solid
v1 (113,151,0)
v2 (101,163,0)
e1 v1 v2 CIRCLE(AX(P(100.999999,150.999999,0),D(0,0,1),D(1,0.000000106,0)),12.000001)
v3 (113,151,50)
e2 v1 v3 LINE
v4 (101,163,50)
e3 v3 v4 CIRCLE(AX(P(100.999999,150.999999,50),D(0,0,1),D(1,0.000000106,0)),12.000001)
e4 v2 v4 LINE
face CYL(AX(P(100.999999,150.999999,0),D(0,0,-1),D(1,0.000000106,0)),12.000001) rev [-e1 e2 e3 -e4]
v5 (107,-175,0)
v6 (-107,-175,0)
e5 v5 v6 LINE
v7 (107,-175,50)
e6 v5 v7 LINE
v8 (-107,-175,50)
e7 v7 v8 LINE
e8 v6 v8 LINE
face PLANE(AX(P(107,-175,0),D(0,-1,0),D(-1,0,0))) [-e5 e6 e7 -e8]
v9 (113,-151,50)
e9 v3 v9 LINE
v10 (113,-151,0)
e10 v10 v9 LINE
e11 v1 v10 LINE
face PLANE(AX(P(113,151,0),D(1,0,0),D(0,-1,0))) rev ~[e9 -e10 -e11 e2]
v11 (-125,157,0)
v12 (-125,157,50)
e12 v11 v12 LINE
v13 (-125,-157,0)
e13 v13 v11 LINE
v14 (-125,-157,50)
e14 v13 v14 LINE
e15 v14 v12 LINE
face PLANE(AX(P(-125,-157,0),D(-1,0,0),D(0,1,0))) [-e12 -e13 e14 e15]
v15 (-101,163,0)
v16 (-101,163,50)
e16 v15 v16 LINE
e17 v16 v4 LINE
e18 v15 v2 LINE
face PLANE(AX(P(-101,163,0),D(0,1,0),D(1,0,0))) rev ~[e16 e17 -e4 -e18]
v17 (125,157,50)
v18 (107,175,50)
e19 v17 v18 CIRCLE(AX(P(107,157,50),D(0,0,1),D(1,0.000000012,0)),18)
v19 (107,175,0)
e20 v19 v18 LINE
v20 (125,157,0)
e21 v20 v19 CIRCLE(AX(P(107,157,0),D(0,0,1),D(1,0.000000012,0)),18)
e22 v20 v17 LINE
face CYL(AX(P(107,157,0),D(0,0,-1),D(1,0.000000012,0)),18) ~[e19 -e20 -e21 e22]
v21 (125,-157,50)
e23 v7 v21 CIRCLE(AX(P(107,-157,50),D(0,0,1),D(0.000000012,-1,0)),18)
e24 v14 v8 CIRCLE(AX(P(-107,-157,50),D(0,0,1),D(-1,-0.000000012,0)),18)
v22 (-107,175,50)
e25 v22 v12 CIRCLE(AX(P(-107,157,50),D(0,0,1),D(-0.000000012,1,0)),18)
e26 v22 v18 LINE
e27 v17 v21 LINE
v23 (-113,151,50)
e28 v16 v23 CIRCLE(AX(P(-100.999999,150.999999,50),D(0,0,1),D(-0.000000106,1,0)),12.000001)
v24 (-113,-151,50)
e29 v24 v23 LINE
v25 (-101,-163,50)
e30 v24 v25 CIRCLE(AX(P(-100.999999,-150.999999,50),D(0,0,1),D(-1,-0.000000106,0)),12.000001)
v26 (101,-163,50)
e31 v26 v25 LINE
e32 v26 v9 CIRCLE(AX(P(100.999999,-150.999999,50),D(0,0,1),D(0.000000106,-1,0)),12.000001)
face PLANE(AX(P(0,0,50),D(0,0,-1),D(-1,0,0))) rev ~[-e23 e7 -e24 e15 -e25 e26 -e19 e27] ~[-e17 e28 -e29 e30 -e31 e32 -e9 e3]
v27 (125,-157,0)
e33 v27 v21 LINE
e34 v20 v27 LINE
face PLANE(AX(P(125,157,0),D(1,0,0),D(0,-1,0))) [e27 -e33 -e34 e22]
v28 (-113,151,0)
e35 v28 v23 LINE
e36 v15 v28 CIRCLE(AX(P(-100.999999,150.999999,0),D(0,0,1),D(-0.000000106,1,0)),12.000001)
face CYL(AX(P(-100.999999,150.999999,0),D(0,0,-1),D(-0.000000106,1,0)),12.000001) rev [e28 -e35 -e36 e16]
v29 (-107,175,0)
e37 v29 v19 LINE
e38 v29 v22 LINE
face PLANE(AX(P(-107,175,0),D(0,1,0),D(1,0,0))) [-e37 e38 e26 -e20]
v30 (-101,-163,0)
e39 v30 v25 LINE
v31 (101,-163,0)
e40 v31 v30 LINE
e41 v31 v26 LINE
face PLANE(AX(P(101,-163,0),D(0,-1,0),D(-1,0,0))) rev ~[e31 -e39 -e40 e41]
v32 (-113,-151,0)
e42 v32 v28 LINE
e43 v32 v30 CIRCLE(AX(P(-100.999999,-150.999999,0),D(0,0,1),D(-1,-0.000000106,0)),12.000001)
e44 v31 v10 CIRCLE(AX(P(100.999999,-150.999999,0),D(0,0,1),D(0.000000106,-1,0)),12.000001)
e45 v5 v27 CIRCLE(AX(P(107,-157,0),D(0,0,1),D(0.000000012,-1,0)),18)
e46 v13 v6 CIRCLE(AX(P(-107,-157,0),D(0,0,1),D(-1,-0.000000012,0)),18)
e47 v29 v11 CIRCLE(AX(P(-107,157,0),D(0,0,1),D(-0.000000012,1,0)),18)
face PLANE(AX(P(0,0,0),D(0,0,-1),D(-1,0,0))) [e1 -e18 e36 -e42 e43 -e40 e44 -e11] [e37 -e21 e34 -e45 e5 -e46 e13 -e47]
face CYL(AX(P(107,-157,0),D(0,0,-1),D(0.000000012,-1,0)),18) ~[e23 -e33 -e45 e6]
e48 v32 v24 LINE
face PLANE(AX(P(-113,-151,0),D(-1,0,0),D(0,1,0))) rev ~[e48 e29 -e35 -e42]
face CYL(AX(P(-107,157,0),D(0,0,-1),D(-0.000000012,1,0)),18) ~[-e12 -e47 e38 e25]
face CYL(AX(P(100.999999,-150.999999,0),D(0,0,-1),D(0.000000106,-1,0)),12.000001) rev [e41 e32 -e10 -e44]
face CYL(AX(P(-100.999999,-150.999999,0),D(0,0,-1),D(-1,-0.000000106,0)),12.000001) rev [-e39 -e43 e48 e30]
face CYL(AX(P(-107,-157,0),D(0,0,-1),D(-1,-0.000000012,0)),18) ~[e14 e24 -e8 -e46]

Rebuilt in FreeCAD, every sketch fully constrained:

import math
import FreeCAD as App
import Part
import Sketcher

V = App.Vector

doc = App.newDocument("Part")
body = doc.addObject("PartDesign::Body", "Body")

# Sketch on XY plane
sketch1 = body.newObject("Sketcher::SketchObject", "Sketch")
sketch1.AttachmentSupport = (doc.getObject("XY_Plane"), [""])
sketch1.MapMode = "FlatFace"
sketch1.addGeometry([
    Part.LineSegment(V(107, 175, 0), V(-107, 175, 0)),  # 0
    Part.ArcOfCircle(Part.Circle(V(-107, 157, 0), V(0, 0, 1), 18), math.radians(90), math.radians(180)),  # 1
    Part.LineSegment(V(-125, 157, 0), V(-125, -157, 0)),  # 2
    Part.ArcOfCircle(Part.Circle(V(-107, -157, 0), V(0, 0, 1), 18), math.radians(-180), math.radians(-90)),  # 3
    Part.LineSegment(V(-107, -175, 0), V(107, -175, 0)),  # 4
    Part.ArcOfCircle(Part.Circle(V(107, -157, 0), V(0, 0, 1), 18), math.radians(-90), math.radians(0)),  # 5
    Part.LineSegment(V(125, -157, 0), V(125, 157, 0)),  # 6
    Part.ArcOfCircle(Part.Circle(V(107, 157, 0), V(0, 0, 1), 18), math.radians(0), math.radians(90)),  # 7
    Part.LineSegment(V(-101, 163, 0), V(101, 163, 0)),  # 8
    Part.ArcOfCircle(Part.Circle(V(101, 151, 0), V(0, 0, 1), 12), math.radians(0), math.radians(90)),  # 9
    Part.LineSegment(V(113, 151, 0), V(113, -151, 0)),  # 10
    Part.ArcOfCircle(Part.Circle(V(101, -151, 0), V(0, 0, 1), 12), math.radians(-90), math.radians(0)),  # 11
    Part.LineSegment(V(101, -163, 0), V(-101, -163, 0)),  # 12
    Part.ArcOfCircle(Part.Circle(V(-101, -151, 0), V(0, 0, 1), 12), math.radians(-180), math.radians(-90)),  # 13
    Part.LineSegment(V(-113, -151, 0), V(-113, 151, 0)),  # 14
    Part.ArcOfCircle(Part.Circle(V(-101, 151, 0), V(0, 0, 1), 12), math.radians(90), math.radians(180)),  # 15
], False)
sketch1.addConstraint([
    Sketcher.Constraint("Tangent", 0, 2, 1, 1),
    Sketcher.Constraint("Tangent", 1, 2, 2, 1),
    Sketcher.Constraint("Tangent", 2, 2, 3, 1),
    Sketcher.Constraint("Tangent", 3, 2, 4, 1),
    Sketcher.Constraint("Tangent", 4, 2, 5, 1),
    Sketcher.Constraint("Tangent", 5, 2, 6, 1),
    Sketcher.Constraint("Tangent", 6, 2, 7, 1),
    Sketcher.Constraint("Tangent", 7, 2, 0, 1),
    Sketcher.Constraint("Tangent", 8, 2, 9, 2),
    Sketcher.Constraint("Tangent", 9, 1, 10, 1),
    Sketcher.Constraint("Tangent", 10, 2, 11, 2),
    Sketcher.Constraint("Tangent", 11, 1, 12, 1),
    Sketcher.Constraint("Tangent", 12, 2, 13, 2),
    Sketcher.Constraint("Tangent", 13, 1, 14, 1),
    Sketcher.Constraint("Tangent", 14, 2, 15, 2),
    Sketcher.Constraint("Tangent", 15, 1, 8, 1),
    Sketcher.Constraint("Horizontal", 0),
    Sketcher.Constraint("Vertical", 2),
    Sketcher.Constraint("Horizontal", 4),
    Sketcher.Constraint("Vertical", 6),
    Sketcher.Constraint("Horizontal", 8),
    Sketcher.Constraint("Vertical", 10),
    Sketcher.Constraint("Horizontal", 12),
    Sketcher.Constraint("Vertical", 14),
    Sketcher.Constraint("Equal", 1, 3),
    Sketcher.Constraint("Equal", 3, 5),
    Sketcher.Constraint("Equal", 5, 7),
    Sketcher.Constraint("Equal", 9, 11),
    Sketcher.Constraint("Equal", 11, 13),
    Sketcher.Constraint("Equal", 13, 15),
    Sketcher.Constraint("Symmetric", 1, 3, 5, 3, -1, 1),
    Sketcher.Constraint("Symmetric", 9, 3, 13, 3, -1, 1),
    Sketcher.Constraint("Radius", 1, 18.0),
    Sketcher.Constraint("Radius", 9, 12.000001),
    Sketcher.Constraint("DistanceX", 0, 2, 0, 1, 214.0),
    Sketcher.Constraint("DistanceX", 8, 1, 8, 2, 202.0),
    Sketcher.Constraint("DistanceY", 2, 2, 2, 1, 314.0),
    Sketcher.Constraint("DistanceY", 10, 2, 10, 1, 302.0),
])
pad1 = body.newObject("PartDesign::Pad", "Pad")
pad1.Profile = sketch1
pad1.Length = 50

doc.recompute()
